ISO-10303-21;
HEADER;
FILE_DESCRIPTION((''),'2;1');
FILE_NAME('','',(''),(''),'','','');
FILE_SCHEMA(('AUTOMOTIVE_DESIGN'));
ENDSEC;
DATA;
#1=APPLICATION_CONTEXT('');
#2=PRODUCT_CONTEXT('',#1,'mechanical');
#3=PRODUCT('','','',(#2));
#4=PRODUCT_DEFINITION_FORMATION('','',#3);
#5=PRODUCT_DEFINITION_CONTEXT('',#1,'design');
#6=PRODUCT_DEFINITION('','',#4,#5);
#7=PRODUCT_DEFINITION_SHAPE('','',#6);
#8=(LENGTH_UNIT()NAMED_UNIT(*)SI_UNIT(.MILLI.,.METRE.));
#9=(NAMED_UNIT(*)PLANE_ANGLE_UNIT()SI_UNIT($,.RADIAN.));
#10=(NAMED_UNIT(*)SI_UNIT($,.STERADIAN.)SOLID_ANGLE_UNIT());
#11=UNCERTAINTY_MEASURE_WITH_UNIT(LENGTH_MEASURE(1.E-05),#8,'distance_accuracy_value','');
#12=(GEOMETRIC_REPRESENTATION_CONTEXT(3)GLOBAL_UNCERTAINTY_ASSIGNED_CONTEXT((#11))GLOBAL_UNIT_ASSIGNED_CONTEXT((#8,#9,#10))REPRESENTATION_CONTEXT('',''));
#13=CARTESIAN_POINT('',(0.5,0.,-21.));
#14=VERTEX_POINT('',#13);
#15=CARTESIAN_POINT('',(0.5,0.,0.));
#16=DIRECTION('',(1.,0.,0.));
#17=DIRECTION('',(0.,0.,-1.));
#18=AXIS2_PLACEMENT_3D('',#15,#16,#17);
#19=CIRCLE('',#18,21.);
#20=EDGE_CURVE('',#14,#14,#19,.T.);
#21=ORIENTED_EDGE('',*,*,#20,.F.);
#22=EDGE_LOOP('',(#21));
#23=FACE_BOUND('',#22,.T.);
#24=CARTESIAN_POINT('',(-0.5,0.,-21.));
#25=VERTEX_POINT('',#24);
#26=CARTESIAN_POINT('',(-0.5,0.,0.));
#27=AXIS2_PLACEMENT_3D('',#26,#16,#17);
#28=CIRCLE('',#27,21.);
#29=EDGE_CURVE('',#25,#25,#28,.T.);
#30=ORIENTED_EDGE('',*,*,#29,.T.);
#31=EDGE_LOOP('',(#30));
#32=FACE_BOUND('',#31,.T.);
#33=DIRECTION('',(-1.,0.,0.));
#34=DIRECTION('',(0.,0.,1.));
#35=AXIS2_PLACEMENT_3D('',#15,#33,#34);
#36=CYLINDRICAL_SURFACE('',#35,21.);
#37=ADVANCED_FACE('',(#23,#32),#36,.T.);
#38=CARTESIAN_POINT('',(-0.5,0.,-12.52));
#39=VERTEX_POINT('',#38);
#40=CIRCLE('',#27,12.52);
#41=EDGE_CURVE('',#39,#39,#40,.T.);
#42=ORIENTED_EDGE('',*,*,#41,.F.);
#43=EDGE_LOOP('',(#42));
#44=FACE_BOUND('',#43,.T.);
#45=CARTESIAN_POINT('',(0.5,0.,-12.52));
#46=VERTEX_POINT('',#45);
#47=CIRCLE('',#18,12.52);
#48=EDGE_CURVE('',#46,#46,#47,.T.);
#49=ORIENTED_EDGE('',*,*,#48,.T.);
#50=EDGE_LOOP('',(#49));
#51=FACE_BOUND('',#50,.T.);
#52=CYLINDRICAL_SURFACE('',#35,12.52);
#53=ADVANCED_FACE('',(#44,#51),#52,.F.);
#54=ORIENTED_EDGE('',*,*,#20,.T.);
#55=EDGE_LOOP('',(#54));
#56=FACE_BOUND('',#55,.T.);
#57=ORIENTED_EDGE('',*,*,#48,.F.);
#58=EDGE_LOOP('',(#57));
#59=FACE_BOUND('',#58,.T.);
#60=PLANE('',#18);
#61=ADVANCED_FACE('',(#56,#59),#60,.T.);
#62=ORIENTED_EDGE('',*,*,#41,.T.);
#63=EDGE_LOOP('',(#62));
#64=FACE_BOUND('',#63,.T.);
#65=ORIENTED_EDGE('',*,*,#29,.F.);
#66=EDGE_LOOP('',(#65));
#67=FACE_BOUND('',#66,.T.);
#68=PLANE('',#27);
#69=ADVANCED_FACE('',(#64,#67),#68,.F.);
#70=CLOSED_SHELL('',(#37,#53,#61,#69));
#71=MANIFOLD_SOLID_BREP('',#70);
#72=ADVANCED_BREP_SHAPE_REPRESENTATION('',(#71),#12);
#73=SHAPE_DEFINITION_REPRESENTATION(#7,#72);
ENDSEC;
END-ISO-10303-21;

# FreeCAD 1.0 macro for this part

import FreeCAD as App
import Part
import Sketcher

V = App.Vector

doc = App.newDocument("Part")
body = doc.addObject("PartDesign::Body", "Body")

# Sketch on YZ plane
sketch1 = body.newObject("Sketcher::SketchObject", "Sketch")
sketch1.AttachmentSupport = (doc.getObject("YZ_Plane"), [""])
sketch1.MapMode = "FlatFace"
sketch1.addGeometry([
    Part.Circle(V(0, 0, 0), V(0, 0, 1), 21),
    Part.Circle(V(0, 0, 0), V(0, 0, 1), 12.52),
], False)
sketch1.addConstraint([
    Sketcher.Constraint("Coincident", 0, 3, -1, 1),
    Sketcher.Constraint("Coincident", 1, 3, -1, 1),
    Sketcher.Constraint("Diameter", 0, 42.0),
    Sketcher.Constraint("Diameter", 1, 25.04),
])
pad1 = body.newObject("PartDesign::Pad", "Pad")
pad1.Profile = sketch1
pad1.Type = "TwoLengths"
pad1.Length = 0.5
pad1.Length2 = 0.5

doc.recompute()
